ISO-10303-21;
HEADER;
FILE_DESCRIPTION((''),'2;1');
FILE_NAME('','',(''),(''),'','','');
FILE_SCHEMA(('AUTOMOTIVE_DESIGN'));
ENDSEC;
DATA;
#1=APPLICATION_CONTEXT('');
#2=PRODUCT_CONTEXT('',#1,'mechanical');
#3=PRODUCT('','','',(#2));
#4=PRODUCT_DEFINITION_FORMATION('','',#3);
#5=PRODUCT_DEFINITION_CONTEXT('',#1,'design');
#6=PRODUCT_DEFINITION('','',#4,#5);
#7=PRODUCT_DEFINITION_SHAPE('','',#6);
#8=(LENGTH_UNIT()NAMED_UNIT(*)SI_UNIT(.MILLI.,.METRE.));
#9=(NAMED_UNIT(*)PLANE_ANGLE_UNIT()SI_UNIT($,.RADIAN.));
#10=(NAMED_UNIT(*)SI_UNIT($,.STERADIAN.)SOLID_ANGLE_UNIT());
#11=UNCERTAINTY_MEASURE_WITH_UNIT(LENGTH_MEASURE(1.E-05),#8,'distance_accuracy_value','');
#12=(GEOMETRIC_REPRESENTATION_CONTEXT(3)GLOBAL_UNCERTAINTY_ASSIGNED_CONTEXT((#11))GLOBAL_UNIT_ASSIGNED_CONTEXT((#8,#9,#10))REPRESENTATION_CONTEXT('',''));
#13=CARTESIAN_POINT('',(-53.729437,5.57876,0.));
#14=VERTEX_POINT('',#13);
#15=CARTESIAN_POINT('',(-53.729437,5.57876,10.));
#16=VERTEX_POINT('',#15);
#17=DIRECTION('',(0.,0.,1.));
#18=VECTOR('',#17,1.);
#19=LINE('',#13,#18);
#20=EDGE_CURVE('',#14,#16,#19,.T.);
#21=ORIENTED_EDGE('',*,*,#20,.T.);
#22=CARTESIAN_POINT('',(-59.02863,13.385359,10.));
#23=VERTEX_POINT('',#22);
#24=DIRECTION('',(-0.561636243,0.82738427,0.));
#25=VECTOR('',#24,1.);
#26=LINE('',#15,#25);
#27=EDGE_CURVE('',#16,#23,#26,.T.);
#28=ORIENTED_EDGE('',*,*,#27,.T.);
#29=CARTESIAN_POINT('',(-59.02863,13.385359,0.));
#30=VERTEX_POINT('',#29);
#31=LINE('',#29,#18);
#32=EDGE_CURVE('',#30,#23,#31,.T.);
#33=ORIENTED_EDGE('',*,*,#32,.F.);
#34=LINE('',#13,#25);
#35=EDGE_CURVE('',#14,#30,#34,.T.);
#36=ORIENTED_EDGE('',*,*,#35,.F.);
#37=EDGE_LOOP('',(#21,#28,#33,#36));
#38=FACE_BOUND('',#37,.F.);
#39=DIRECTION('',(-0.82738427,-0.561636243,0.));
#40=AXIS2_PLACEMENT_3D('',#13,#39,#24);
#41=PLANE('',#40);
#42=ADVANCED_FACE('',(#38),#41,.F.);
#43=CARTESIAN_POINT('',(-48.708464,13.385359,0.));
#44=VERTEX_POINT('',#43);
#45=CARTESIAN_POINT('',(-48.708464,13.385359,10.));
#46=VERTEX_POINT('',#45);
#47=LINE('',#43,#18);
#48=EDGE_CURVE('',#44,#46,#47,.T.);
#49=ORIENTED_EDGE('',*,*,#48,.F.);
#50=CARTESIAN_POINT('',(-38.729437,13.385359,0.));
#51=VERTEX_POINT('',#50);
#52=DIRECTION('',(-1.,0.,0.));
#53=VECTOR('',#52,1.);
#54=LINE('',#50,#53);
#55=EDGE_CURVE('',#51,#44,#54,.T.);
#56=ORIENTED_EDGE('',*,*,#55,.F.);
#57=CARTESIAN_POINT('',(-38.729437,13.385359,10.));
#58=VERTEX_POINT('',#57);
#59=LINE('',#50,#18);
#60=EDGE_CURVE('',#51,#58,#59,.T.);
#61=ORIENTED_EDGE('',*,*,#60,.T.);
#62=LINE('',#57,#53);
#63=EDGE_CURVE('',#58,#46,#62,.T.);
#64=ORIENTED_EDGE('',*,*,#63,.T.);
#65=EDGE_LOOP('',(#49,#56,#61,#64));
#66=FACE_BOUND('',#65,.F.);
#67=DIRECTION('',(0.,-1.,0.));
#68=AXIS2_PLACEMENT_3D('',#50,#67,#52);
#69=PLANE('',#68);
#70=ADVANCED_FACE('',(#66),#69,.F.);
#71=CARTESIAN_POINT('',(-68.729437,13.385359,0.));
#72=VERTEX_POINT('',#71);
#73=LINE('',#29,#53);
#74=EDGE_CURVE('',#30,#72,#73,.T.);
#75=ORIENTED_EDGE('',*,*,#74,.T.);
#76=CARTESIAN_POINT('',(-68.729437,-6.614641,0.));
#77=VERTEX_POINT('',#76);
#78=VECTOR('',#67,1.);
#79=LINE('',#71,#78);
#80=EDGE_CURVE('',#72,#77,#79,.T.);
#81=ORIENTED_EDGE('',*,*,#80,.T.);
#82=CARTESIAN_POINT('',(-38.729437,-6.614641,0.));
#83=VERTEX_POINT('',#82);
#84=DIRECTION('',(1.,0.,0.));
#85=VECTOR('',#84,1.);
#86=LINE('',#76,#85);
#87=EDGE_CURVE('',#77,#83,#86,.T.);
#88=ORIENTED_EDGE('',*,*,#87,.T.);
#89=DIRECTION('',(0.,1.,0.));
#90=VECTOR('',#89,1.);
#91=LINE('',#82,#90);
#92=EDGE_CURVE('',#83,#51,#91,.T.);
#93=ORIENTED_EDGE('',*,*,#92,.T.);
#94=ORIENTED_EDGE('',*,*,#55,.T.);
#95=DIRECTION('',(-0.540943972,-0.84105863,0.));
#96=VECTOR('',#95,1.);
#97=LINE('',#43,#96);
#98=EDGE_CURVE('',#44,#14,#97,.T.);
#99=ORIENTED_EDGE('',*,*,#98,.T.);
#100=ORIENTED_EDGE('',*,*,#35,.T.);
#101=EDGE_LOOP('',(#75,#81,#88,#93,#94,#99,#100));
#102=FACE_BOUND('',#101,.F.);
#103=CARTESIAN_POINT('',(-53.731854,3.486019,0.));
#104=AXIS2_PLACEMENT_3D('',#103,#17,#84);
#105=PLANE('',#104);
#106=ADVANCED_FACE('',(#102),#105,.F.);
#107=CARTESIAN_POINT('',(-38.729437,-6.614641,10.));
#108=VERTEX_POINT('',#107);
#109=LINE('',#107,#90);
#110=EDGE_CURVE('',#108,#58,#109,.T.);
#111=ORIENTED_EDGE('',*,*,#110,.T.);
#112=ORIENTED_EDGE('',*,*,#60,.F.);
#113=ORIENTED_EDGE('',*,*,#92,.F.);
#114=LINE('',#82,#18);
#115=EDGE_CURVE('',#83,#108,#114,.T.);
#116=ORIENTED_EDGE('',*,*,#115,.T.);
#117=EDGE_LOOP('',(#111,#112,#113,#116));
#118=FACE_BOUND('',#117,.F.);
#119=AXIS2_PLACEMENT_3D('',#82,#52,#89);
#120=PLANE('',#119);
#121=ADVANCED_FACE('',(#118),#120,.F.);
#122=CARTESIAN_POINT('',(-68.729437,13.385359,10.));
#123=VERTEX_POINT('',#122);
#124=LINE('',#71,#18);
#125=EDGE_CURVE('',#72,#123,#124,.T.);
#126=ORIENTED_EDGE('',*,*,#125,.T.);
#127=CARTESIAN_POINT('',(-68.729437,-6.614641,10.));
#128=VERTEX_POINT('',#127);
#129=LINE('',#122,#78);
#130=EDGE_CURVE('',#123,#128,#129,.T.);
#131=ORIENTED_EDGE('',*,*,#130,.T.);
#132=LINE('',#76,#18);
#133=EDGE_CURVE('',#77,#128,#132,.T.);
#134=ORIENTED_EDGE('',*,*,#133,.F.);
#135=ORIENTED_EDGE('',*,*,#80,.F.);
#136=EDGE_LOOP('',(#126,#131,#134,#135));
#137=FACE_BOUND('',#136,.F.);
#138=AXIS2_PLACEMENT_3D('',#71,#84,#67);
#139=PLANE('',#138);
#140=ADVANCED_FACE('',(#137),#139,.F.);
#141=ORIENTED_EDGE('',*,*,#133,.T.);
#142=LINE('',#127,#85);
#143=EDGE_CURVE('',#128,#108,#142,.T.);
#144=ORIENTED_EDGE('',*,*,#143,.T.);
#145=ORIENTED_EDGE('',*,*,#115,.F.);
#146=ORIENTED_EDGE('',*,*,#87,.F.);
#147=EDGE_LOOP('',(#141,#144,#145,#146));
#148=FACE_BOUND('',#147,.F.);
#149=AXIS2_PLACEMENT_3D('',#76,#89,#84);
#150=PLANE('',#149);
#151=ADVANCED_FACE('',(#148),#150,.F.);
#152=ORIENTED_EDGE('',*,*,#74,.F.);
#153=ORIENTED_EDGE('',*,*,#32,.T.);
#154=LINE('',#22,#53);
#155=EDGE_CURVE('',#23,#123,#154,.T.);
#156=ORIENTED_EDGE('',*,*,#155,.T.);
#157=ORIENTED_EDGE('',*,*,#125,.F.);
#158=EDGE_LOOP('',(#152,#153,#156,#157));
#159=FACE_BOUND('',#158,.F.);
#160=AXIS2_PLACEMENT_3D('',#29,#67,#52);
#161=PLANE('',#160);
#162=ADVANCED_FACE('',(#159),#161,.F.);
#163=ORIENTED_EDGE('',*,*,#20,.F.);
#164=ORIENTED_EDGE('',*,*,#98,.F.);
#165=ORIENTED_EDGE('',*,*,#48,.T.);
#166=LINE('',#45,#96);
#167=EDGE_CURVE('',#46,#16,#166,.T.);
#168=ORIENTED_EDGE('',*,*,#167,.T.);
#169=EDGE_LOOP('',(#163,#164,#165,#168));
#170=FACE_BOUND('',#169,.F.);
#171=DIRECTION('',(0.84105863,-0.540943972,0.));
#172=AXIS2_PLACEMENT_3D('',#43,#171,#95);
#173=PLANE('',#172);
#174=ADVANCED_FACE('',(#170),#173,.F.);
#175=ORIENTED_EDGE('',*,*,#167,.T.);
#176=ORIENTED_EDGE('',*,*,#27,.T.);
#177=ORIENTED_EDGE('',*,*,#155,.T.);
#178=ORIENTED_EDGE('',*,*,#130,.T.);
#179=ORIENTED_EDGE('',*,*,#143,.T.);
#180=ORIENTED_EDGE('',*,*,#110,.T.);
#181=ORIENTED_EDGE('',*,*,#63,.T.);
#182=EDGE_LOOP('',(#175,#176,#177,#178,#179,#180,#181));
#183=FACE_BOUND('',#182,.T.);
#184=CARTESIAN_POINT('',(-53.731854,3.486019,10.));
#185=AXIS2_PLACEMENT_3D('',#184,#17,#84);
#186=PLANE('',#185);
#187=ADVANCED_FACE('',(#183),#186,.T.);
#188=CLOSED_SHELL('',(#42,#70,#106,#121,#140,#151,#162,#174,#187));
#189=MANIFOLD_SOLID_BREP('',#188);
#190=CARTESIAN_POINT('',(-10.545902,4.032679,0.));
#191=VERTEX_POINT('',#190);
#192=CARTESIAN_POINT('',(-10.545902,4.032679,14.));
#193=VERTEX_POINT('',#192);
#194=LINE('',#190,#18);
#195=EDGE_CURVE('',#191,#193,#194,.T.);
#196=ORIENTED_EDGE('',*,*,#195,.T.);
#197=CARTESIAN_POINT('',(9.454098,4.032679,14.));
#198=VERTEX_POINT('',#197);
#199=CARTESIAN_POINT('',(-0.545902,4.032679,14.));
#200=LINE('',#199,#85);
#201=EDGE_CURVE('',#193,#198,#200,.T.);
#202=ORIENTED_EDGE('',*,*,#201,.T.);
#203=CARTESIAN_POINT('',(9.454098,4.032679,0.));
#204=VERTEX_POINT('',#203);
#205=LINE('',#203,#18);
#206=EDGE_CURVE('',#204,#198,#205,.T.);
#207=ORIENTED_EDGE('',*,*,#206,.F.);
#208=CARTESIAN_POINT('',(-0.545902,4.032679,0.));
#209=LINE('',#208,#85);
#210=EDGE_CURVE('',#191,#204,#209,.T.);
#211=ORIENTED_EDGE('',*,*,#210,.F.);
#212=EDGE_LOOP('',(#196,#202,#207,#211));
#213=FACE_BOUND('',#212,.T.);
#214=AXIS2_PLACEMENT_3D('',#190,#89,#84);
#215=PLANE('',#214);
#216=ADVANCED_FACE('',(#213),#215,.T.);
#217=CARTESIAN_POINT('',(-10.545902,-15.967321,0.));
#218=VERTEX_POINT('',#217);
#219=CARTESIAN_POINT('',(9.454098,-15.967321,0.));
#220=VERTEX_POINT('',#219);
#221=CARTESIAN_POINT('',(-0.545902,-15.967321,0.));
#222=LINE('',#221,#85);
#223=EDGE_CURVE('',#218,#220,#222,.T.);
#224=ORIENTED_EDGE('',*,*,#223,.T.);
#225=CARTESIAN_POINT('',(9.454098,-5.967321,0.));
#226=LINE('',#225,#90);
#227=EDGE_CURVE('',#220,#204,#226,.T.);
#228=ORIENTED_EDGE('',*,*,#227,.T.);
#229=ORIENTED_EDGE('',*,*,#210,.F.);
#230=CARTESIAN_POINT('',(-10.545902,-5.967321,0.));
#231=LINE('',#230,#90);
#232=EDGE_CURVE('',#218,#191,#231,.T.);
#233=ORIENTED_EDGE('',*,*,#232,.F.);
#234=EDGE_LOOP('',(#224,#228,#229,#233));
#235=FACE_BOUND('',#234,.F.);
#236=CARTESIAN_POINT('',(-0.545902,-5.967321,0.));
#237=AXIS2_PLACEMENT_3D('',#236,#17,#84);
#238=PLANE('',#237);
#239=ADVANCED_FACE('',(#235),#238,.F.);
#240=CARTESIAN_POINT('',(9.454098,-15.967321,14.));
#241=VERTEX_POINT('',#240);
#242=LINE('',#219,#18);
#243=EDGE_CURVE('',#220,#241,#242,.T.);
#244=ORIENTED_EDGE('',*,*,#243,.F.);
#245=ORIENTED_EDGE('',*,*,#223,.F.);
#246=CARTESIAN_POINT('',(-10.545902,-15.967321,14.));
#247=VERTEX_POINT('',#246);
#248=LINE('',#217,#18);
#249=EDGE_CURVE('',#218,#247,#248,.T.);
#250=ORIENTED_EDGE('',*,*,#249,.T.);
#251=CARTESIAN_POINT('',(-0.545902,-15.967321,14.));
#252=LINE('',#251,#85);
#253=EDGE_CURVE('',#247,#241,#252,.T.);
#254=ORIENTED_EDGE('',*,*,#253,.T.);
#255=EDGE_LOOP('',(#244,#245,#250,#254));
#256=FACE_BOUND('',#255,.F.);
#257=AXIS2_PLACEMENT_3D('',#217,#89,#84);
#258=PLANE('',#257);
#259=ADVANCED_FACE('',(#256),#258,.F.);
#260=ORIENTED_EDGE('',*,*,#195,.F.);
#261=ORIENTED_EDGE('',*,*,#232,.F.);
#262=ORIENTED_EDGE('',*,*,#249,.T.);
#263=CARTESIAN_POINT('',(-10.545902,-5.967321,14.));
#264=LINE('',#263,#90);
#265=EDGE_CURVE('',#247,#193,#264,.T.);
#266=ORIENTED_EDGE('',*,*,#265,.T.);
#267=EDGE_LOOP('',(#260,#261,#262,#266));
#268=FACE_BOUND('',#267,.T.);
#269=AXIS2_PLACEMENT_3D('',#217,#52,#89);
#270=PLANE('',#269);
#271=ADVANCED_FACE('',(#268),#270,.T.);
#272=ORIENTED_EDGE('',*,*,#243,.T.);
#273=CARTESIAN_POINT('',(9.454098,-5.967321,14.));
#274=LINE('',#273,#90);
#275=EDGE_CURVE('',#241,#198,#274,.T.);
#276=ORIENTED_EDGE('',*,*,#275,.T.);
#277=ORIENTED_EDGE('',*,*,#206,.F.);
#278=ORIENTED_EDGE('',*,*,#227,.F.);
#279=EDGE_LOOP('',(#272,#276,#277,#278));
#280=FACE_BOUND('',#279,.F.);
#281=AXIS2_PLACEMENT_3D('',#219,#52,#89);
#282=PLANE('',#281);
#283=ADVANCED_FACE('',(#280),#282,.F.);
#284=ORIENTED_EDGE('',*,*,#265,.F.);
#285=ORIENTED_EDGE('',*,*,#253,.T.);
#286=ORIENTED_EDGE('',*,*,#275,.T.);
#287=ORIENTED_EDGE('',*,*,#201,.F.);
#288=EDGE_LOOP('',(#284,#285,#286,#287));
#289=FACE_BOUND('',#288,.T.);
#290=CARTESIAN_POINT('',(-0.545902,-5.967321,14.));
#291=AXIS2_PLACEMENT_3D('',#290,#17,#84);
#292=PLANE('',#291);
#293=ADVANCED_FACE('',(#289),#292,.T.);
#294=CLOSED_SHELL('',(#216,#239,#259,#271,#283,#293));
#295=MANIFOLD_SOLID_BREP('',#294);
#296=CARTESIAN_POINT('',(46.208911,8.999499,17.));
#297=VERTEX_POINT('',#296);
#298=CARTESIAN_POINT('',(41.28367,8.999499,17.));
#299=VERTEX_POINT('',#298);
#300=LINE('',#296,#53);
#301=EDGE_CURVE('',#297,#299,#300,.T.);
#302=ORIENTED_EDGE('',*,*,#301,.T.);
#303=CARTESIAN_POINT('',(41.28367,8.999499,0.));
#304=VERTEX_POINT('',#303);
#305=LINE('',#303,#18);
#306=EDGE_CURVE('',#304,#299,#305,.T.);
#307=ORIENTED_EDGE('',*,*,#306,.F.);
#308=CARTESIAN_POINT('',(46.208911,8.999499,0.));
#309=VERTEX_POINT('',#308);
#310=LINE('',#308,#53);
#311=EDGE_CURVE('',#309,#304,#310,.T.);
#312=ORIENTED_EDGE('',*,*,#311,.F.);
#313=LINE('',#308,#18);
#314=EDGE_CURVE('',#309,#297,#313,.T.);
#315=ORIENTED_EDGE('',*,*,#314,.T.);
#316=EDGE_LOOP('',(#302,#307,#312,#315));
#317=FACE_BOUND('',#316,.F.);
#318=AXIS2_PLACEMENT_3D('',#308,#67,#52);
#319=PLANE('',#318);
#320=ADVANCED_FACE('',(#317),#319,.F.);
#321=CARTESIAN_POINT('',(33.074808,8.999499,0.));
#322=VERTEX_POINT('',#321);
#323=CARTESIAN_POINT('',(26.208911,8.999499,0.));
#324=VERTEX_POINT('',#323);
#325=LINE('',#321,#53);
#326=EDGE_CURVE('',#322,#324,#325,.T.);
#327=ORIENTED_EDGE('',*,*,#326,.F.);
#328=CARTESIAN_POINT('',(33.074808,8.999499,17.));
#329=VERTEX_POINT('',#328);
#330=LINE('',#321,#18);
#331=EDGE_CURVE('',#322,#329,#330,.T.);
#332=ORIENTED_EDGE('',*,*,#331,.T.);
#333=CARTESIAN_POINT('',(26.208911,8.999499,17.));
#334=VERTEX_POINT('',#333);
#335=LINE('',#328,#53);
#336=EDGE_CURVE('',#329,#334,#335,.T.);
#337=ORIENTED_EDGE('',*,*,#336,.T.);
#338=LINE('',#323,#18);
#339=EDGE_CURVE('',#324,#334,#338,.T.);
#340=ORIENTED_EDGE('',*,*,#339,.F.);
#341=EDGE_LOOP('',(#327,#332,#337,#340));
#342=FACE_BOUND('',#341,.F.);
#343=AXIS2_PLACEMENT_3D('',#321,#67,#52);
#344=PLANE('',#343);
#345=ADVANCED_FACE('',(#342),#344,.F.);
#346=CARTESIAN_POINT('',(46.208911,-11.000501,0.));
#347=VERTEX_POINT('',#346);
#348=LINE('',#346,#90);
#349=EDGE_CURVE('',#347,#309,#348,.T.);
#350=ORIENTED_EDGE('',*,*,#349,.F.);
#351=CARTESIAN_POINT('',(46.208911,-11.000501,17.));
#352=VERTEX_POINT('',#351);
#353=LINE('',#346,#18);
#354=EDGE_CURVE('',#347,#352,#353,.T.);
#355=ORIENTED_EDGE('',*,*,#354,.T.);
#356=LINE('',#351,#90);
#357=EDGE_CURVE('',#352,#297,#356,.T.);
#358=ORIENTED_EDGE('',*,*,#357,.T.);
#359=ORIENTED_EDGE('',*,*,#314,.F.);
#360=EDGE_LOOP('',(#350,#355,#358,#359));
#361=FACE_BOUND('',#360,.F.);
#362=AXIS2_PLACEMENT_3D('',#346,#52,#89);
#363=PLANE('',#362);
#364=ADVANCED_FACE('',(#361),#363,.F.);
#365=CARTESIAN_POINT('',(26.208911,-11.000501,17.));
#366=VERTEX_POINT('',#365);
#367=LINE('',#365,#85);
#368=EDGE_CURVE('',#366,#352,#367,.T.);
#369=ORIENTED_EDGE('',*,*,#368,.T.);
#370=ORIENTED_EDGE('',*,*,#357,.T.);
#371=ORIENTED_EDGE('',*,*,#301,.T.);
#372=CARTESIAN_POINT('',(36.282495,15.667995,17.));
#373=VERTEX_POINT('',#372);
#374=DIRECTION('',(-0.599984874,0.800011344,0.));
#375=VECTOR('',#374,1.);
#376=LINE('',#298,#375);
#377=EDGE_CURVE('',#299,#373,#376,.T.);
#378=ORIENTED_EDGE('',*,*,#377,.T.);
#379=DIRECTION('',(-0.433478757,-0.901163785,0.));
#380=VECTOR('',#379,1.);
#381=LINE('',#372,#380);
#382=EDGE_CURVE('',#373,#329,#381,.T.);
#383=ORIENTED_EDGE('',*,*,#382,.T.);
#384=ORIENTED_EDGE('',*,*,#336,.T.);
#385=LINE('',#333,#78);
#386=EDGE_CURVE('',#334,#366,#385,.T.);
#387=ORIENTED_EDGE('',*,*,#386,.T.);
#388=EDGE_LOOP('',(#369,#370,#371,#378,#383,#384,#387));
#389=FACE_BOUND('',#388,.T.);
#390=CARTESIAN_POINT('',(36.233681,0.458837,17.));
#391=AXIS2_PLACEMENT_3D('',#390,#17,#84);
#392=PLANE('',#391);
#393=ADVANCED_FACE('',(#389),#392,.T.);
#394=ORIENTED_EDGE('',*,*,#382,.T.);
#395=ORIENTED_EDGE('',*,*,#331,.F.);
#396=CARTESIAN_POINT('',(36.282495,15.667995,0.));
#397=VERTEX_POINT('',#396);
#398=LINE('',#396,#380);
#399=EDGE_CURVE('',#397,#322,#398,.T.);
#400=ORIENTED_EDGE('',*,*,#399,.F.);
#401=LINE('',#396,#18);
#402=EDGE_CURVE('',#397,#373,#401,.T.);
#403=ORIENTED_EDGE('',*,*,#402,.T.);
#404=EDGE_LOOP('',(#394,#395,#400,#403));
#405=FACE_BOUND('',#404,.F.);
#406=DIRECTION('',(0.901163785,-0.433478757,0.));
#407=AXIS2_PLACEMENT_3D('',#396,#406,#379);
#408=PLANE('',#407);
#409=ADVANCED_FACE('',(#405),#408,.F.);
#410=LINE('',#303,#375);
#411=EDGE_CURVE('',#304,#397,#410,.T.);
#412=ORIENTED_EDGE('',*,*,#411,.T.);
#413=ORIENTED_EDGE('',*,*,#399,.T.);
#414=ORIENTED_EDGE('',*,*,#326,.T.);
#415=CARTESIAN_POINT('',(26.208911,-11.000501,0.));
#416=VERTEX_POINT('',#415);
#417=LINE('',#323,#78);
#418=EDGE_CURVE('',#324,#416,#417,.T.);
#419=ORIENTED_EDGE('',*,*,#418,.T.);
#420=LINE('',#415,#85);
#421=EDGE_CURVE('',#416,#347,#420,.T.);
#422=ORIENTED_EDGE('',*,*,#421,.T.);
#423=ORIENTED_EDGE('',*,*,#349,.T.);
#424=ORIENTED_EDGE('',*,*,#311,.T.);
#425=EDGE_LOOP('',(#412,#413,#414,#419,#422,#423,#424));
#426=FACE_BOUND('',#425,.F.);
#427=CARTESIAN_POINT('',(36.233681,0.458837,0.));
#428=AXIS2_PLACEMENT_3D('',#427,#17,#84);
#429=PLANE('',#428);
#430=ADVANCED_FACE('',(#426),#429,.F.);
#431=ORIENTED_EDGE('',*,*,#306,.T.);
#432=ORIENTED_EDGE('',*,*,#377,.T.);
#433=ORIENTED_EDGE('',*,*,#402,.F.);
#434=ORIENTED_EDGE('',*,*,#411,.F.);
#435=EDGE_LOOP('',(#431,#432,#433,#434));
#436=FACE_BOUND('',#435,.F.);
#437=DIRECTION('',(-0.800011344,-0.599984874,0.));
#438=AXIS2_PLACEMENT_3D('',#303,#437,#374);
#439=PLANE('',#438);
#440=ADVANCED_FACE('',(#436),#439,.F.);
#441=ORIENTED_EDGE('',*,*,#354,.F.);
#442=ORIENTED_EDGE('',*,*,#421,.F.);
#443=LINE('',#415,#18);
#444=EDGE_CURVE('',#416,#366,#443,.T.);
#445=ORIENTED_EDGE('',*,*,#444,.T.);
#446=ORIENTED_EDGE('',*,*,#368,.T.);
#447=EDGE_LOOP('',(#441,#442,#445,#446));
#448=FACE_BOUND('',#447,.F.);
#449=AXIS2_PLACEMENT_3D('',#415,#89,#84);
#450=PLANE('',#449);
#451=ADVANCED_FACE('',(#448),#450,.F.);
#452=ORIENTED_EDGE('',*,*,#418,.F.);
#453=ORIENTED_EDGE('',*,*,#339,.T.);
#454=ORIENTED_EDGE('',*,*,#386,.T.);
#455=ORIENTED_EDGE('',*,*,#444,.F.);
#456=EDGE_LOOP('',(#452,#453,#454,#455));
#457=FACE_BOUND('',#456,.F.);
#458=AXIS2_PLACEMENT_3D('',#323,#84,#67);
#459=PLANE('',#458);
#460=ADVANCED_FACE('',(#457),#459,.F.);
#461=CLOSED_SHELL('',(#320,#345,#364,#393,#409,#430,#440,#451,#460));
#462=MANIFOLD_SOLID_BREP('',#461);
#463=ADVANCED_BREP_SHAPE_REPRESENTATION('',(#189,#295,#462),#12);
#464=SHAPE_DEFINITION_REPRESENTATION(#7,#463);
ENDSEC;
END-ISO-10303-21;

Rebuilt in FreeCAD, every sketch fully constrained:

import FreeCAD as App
import Part
import Sketcher
from FreeCAD import Vector

doc = App.newDocument("Part")
body = doc.addObject("PartDesign::Body", "Body")

sketch1 = doc.addObject("Sketcher::SketchObject", "Sketch")
body.addObject(sketch1)
sketch1.AttachmentSupport = (doc.XY_Plane, [""])
sketch1.MapMode = "FlatFace"
sketch1.addGeometry([
    Part.LineSegment(Vector(-11, 4, 0), Vector(-11, -16, 0)),
    Part.LineSegment(Vector(-11, -16, 0), Vector(9, -16, 0)),
    Part.LineSegment(Vector(9, -16, 0), Vector(9, 4, 0)),
    Part.LineSegment(Vector(9, 4, 0), Vector(-11, 4, 0)),
], False)
sketch1.addConstraint([
    Sketcher.Constraint("Coincident", 0, 2, 1, 1),
    Sketcher.Constraint("Coincident", 1, 2, 2, 1),
    Sketcher.Constraint("Coincident", 2, 2, 3, 1),
    Sketcher.Constraint("Coincident", 3, 2, 0, 1),
    Sketcher.Constraint("Vertical", 0),
    Sketcher.Constraint("Horizontal", 1),
    Sketcher.Constraint("Vertical", 2),
    Sketcher.Constraint("Horizontal", 3),
    Sketcher.Constraint("Equal", 3, 0),
    Sketcher.Constraint("DistanceX", 1, 1, 1, 2, 20.0),
    Sketcher.Constraint("DistanceY", 0, 2, -1, 1, 15.967321),
    Sketcher.Constraint("DistanceX", 0, 2, -1, 1, 10.545902),
])
pad1 = doc.addObject("PartDesign::Pad", "Pad")
body.addObject(pad1)
pad1.Profile = sketch1
pad1.Length = 14
body2 = doc.addObject("PartDesign::Body", "Body001")

sketch2 = doc.addObject("Sketcher::SketchObject", "Sketch001")
body2.addObject(sketch2)
sketch2.AttachmentSupport = (doc.getObject("XY_Plane001"), [""])
sketch2.MapMode = "FlatFace"
sketch2.addGeometry([
    Part.LineSegment(Vector(33.1, 9, 0), Vector(26.2, 9, 0)),
    Part.LineSegment(Vector(26.2, 9, 0), Vector(26.2, -11, 0)),
    Part.LineSegment(Vector(26.2, -11, 0), Vector(46.2, -11, 0)),
    Part.LineSegment(Vector(46.2, -11, 0), Vector(46.2, 9, 0)),
    Part.LineSegment(Vector(46.2, 9, 0), Vector(41.3, 9, 0)),
    Part.LineSegment(Vector(41.3, 9, 0), Vector(36.3, 15.7, 0)),
    Part.LineSegment(Vector(36.3, 15.7, 0), Vector(33.1, 9, 0)),
], False)
sketch2.addConstraint([
    Sketcher.Constraint("Coincident", 0, 2, 1, 1),
    Sketcher.Constraint("Coincident", 1, 2, 2, 1),
    Sketcher.Constraint("Coincident", 2, 2, 3, 1),
    Sketcher.Constraint("Coincident", 3, 2, 4, 1),
    Sketcher.Constraint("Coincident", 4, 2, 5, 1),
    Sketcher.Constraint("Coincident", 5, 2, 6, 1),
    Sketcher.Constraint("Coincident", 6, 2, 0, 1),
    Sketcher.Constraint("Horizontal", 0),
    Sketcher.Constraint("Vertical", 1),
    Sketcher.Constraint("Horizontal", 2),
    Sketcher.Constraint("Vertical", 3),
    Sketcher.Constraint("Horizontal", 4),
    Sketcher.Constraint("Horizontal", 0, 2, 3, 2),
    Sketcher.Constraint("Equal", 2, 1),
    Sketcher.Constraint("DistanceX", 2, 1, 2, 2, 20.0),
    Sketcher.Constraint("Distance", 5, 8.335502),
    Sketcher.Constraint("DistanceX", 4, 2, 4, 1, 4.925241),
    Sketcher.Constraint("DistanceY", -1, 1, 0, 2, 8.999499),
    Sketcher.Constraint("Distance", 6, 7.399871),
    Sketcher.Constraint("DistanceX", 0, 2, 0, 1, 6.865897),
    Sketcher.Constraint("DistanceX", -1, 1, 0, 2, 26.208911),
])
pad2 = doc.addObject("PartDesign::Pad", "Pad001")
body2.addObject(pad2)
pad2.Profile = sketch2
pad2.Length = 17
body3 = doc.addObject("PartDesign::Body", "Body002")

sketch3 = doc.addObject("Sketcher::SketchObject", "Sketch002")
body3.addObject(sketch3)
sketch3.AttachmentSupport = (doc.getObject("XY_Plane002"), [""])
sketch3.MapMode = "FlatFace"
sketch3.addGeometry([
    Part.LineSegment(Vector(-59, 13, 0), Vector(-69, 13, 0)),
    Part.LineSegment(Vector(-69, 13, 0), Vector(-69, -7, 0)),
    Part.LineSegment(Vector(-69, -7, 0), Vector(-39, -7, 0)),
    Part.LineSegment(Vector(-39, -7, 0), Vector(-39, 13, 0)),
    Part.LineSegment(Vector(-39, 13, 0), Vector(-49, 13, 0)),
    Part.LineSegment(Vector(-49, 13, 0), Vector(-54, 6, 0)),
    Part.LineSegment(Vector(-54, 6, 0), Vector(-59, 13, 0)),
], False)
sketch3.addConstraint([
    Sketcher.Constraint("Coincident", 0, 2, 1, 1),
    Sketcher.Constraint("Coincident", 1, 2, 2, 1),
    Sketcher.Constraint("Coincident", 2, 2, 3, 1),
    Sketcher.Constraint("Coincident", 3, 2, 4, 1),
    Sketcher.Constraint("Coincident", 4, 2, 5, 1),
    Sketcher.Constraint("Coincident", 5, 2, 6, 1),
    Sketcher.Constraint("Coincident", 6, 2, 0, 1),
    Sketcher.Constraint("Horizontal", 0),
    Sketcher.Constraint("Vertical", 1),
    Sketcher.Constraint("Horizontal", 2),
    Sketcher.Constraint("Vertical", 3),
    Sketcher.Constraint("Horizontal", 4),
    Sketcher.Constraint("Horizontal", 0, 2, 3, 2),
    Sketcher.Constraint("DistanceX", 2, 1, 2, 2, 30.0),
    Sketcher.Constraint("DistanceY", 1, 2, 1, 1, 20.0),
    Sketcher.Constraint("DistanceX", 5, 2, 3, 2, 15.0),
    Sketcher.Constraint("DistanceY", 5, 2, 4, 2, 7.806599),
    Sketcher.Constraint("DistanceX", 0, 2, 0, 1, 9.700807),
    Sketcher.Constraint("DistanceX", 4, 2, 4, 1, 9.979027),
    Sketcher.Constraint("DistanceY", -1, 1, 0, 2, 13.385359),
    Sketcher.Constraint("DistanceX", 6, 2, -1, 1, 59.02863),
])
pad3 = doc.addObject("PartDesign::Pad", "Pad002")
body3.addObject(pad3)
pad3.Profile = sketch3
pad3.Length = 10

doc.recompute()
